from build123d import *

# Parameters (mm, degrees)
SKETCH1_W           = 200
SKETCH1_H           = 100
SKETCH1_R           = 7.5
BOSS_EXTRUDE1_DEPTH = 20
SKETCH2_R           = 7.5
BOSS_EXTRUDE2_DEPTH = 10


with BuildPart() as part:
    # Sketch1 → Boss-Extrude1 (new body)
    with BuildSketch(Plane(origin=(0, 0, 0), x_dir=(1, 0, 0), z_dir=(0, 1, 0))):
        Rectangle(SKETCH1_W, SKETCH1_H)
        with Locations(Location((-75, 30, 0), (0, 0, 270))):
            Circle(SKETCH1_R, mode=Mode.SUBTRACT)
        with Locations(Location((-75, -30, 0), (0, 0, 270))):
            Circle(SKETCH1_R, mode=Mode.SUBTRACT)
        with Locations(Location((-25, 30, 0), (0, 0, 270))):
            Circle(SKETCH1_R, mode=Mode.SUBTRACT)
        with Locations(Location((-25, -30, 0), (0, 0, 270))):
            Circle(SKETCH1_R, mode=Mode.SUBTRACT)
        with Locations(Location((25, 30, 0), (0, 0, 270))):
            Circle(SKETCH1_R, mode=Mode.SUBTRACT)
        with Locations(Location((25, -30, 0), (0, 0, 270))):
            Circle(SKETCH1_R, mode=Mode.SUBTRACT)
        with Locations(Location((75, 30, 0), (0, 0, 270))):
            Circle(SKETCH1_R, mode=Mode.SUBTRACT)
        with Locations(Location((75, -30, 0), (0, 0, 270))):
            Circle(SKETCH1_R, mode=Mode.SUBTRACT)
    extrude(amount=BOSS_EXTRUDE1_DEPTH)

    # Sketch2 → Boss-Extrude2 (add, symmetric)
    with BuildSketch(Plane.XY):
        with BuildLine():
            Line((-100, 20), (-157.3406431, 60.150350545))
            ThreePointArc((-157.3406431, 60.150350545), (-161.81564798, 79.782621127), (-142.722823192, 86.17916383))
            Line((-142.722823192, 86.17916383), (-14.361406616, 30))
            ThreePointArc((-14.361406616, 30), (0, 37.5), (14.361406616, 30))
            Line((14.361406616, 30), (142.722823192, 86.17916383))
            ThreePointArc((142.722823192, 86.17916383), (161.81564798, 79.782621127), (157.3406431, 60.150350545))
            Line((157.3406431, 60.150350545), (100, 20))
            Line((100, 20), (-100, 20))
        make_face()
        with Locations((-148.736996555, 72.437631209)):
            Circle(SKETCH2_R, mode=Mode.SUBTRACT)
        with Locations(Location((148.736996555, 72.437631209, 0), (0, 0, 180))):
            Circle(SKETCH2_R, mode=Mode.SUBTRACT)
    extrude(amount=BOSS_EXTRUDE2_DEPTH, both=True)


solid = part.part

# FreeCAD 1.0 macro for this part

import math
import FreeCAD as App
import Part
import Sketcher
from FreeCAD import Vector
Q = App.Units.Quantity


def add_polygon(sketch, points):
    """Adds a closed chain of lines whose ends are joined by coincident constraints."""
    first, n = sketch.GeometryCount, len(points)
    for a, b in zip(points, points[1:] + points[:1]):
        sketch.addGeometry(Part.LineSegment(App.Vector(*a, 0), App.Vector(*b, 0)), False)
    for i in range(n):
        sketch.addConstraint(Sketcher.Constraint("Coincident", first + i, 2, first + (i + 1) % n, 1))

doc = App.newDocument("Part")
body = doc.addObject("PartDesign::Body", "Body")

# Sketch on XZ plane
sketch1 = body.newObject("Sketcher::SketchObject", "Sketch")
sketch1.AttachmentSupport = (doc.getObject("XZ_Plane"), [""])
sketch1.MapMode = "FlatFace"
add_polygon(sketch1, [(-100, -50), (-100, 50), (100, 50), (100, -50)])  # lines 0-3
sketch1.addGeometry(Part.Circle(Vector(-75, 30, 0), Vector(0, 0, 1), 7.5), False)  # 4
sketch1.addGeometry(Part.Circle(Vector(-25, 30, 0), Vector(0, 0, 1), 7.5), False)  # 5
sketch1.addGeometry(Part.Circle(Vector(25, 30, 0), Vector(0, 0, 1), 7.5), False)  # 6
sketch1.addGeometry(Part.Circle(Vector(75, 30, 0), Vector(0, 0, 1), 7.5), False)  # 7
sketch1.addGeometry(Part.Circle(Vector(-75, -30, 0), Vector(0, 0, 1), 7.5), False)  # 8
sketch1.addGeometry(Part.Circle(Vector(-25, -30, 0), Vector(0, 0, 1), 7.5), False)  # 9
sketch1.addGeometry(Part.Circle(Vector(25, -30, 0), Vector(0, 0, 1), 7.5), False)  # 10
sketch1.addGeometry(Part.Circle(Vector(75, -30, 0), Vector(0, 0, 1), 7.5), False)  # 11
sketch1.addConstraint(Sketcher.Constraint("Vertical", 0))
sketch1.addConstraint(Sketcher.Constraint("Horizontal", 1))
sketch1.addConstraint(Sketcher.Constraint("Vertical", 2))
sketch1.addConstraint(Sketcher.Constraint("Horizontal", 3))
sketch1.addConstraint(Sketcher.Constraint("Equal", 4, 5))
sketch1.addConstraint(Sketcher.Constraint("Equal", 5, 6))
sketch1.addConstraint(Sketcher.Constraint("Equal", 6, 7))
sketch1.addConstraint(Sketcher.Constraint("Equal", 7, 8))
sketch1.addConstraint(Sketcher.Constraint("Equal", 8, 9))
sketch1.addConstraint(Sketcher.Constraint("Equal", 9, 10))
sketch1.addConstraint(Sketcher.Constraint("Equal", 10, 11))
sketch1.addConstraint(Sketcher.Constraint("Symmetric", 7, 3, 8, 3, -1, 1))
sketch1.addConstraint(Sketcher.Constraint("Symmetric", 6, 3, 9, 3, -1, 1))
sketch1.addConstraint(Sketcher.Constraint("Symmetric", 5, 3, 10, 3, -1, 1))
sketch1.addConstraint(Sketcher.Constraint("Symmetric", 4, 3, 11, 3, -1, 1))
sketch1.addConstraint(Sketcher.Constraint("Symmetric", 0, 2, 2, 2, -1, 1))
sketch1.addConstraint(Sketcher.Constraint("Symmetric", 5, 3, 6, 3, -2))
sketch1.addConstraint(Sketcher.Constraint("Symmetric", 4, 3, 7, 3, -2))
sketch1.addConstraint(Sketcher.Constraint("Horizontal", 4, 3, 5, 3))
sketch1.addConstraint(Sketcher.Constraint("Diameter", 4, Q("15 mm")))
sketch1.addConstraint(Sketcher.Constraint("DistanceX", 1, 1, 1, 2, Q("200 mm")))
sketch1.addConstraint(Sketcher.Constraint("DistanceY", 0, 1, 0, 2, Q("100 mm")))
sketch1.addConstraint(Sketcher.Constraint("DistanceX", 4, 3, -1, 1, Q("75 mm")))
sketch1.addConstraint(Sketcher.Constraint("DistanceY", -1, 1, 4, 3, Q("30 mm")))
sketch1.addConstraint(Sketcher.Constraint("DistanceX", 5, 3, -1, 1, Q("25 mm")))
pad1 = body.newObject("PartDesign::Pad", "Pad")
pad1.Profile = sketch1
pad1.Length = 20
pad1.Reversed = True

# Sketch on XY plane
sketch2 = body.newObject("Sketcher::SketchObject", "Sketch001")
sketch2.AttachmentSupport = (doc.getObject("XY_Plane"), [""])
sketch2.MapMode = "FlatFace"
sketch2.addGeometry(Part.LineSegment(Vector(-157.340643, 60.150351, 0), Vector(-100, 20, 0)), False)
sketch2.addGeometry(Part.LineSegment(Vector(-100, 20, 0), Vector(100, 20, 0)), False)
sketch2.addGeometry(Part.LineSegment(Vector(100, 20, 0), Vector(157.340643, 60.150351, 0)), False)
sketch2.addGeometry(Part.ArcOfCircle(Part.Circle(Vector(148.736997, 72.437631, 0), Vector(0, 0, 1), 15), math.radians(-55), math.radians(113.637261)), False)
sketch2.addGeometry(Part.LineSegment(Vector(142.722823, 86.179164, 0), Vector(14.361407, 30, 0)), False)
sketch2.addGeometry(Part.ArcOfCircle(Part.Circle(Vector(0, 20, 0), Vector(0, 0, 1), 17.5), math.radians(34.849905), math.radians(145.150095)), False)
sketch2.addGeometry(Part.LineSegment(Vector(-14.361407, 30, 0), Vector(-142.722823, 86.179164, 0)), False)
sketch2.addGeometry(Part.ArcOfCircle(Part.Circle(Vector(-148.736997, 72.437631, 0), Vector(0, 0, 1), 15), math.radians(66.362739), math.radians(235)), False)
sketch2.addGeometry(Part.Circle(Vector(148.736997, 72.437631, 0), Vector(0, 0, 1), 7.5), False)
sketch2.addGeometry(Part.Circle(Vector(-148.736997, 72.437631, 0), Vector(0, 0, 1), 7.5), False)
sketch2.addConstraint(Sketcher.Constraint("Coincident", 0, 2, 1, 1))
sketch2.addConstraint(Sketcher.Constraint("Coincident", 1, 2, 2, 1))
sketch2.addConstraint(Sketcher.Constraint("Tangent", 2, 2, 3, 1))
sketch2.addConstraint(Sketcher.Constraint("Tangent", 3, 2, 4, 1))
sketch2.addConstraint(Sketcher.Constraint("Coincident", 4, 2, 5, 1))
sketch2.addConstraint(Sketcher.Constraint("Coincident", 5, 2, 6, 1))
sketch2.addConstraint(Sketcher.Constraint("Tangent", 6, 2, 7, 1))
sketch2.addConstraint(Sketcher.Constraint("Tangent", 7, 2, 0, 1))
sketch2.addConstraint(Sketcher.Constraint("Horizontal", 1))
sketch2.addConstraint(Sketcher.Constraint("Coincident", 8, 3, 3, 3))
sketch2.addConstraint(Sketcher.Constraint("Coincident", 9, 3, 7, 3))
sketch2.addConstraint(Sketcher.Constraint("Equal", 3, 7))
sketch2.addConstraint(Sketcher.Constraint("Equal", 8, 9))
sketch2.addConstraint(Sketcher.Constraint("Symmetric", 3, 3, 7, 3, -2))
sketch2.addConstraint(Sketcher.Constraint("Symmetric", 4, 2, 5, 2, -2))
sketch2.addConstraint(Sketcher.Constraint("Horizontal", 5, 3, 0, 2))
sketch2.addConstraint(Sketcher.Constraint("Horizontal", 2, 2, 7, 2))
sketch2.addConstraint(Sketcher.Constraint("Diameter", 8, Q("15 mm")))
sketch2.addConstraint(Sketcher.Constraint("Radius", 3, Q("15 mm")))
sketch2.addConstraint(Sketcher.Constraint("Radius", 5, Q("17.5 mm")))
sketch2.addConstraint(Sketcher.Constraint("DistanceX", 1, 1, 1, 2, Q("200 mm")))
sketch2.addConstraint(Sketcher.Constraint("Angle", 0, Q("-35 deg")))
sketch2.addConstraint(Sketcher.Constraint("Distance", 0, Q("70 mm")))
sketch2.addConstraint(Sketcher.Constraint("DistanceY", -1, 1, 5, 3, Q("20 mm")))
sketch2.addConstraint(Sketcher.Constraint("DistanceY", -1, 1, 4, 2, Q("30 mm")))
pad2 = body.newObject("PartDesign::Pad", "Pad001")
pad2.Profile = sketch2
pad2.Length = 20
pad2.Midplane = True

doc.recompute()
